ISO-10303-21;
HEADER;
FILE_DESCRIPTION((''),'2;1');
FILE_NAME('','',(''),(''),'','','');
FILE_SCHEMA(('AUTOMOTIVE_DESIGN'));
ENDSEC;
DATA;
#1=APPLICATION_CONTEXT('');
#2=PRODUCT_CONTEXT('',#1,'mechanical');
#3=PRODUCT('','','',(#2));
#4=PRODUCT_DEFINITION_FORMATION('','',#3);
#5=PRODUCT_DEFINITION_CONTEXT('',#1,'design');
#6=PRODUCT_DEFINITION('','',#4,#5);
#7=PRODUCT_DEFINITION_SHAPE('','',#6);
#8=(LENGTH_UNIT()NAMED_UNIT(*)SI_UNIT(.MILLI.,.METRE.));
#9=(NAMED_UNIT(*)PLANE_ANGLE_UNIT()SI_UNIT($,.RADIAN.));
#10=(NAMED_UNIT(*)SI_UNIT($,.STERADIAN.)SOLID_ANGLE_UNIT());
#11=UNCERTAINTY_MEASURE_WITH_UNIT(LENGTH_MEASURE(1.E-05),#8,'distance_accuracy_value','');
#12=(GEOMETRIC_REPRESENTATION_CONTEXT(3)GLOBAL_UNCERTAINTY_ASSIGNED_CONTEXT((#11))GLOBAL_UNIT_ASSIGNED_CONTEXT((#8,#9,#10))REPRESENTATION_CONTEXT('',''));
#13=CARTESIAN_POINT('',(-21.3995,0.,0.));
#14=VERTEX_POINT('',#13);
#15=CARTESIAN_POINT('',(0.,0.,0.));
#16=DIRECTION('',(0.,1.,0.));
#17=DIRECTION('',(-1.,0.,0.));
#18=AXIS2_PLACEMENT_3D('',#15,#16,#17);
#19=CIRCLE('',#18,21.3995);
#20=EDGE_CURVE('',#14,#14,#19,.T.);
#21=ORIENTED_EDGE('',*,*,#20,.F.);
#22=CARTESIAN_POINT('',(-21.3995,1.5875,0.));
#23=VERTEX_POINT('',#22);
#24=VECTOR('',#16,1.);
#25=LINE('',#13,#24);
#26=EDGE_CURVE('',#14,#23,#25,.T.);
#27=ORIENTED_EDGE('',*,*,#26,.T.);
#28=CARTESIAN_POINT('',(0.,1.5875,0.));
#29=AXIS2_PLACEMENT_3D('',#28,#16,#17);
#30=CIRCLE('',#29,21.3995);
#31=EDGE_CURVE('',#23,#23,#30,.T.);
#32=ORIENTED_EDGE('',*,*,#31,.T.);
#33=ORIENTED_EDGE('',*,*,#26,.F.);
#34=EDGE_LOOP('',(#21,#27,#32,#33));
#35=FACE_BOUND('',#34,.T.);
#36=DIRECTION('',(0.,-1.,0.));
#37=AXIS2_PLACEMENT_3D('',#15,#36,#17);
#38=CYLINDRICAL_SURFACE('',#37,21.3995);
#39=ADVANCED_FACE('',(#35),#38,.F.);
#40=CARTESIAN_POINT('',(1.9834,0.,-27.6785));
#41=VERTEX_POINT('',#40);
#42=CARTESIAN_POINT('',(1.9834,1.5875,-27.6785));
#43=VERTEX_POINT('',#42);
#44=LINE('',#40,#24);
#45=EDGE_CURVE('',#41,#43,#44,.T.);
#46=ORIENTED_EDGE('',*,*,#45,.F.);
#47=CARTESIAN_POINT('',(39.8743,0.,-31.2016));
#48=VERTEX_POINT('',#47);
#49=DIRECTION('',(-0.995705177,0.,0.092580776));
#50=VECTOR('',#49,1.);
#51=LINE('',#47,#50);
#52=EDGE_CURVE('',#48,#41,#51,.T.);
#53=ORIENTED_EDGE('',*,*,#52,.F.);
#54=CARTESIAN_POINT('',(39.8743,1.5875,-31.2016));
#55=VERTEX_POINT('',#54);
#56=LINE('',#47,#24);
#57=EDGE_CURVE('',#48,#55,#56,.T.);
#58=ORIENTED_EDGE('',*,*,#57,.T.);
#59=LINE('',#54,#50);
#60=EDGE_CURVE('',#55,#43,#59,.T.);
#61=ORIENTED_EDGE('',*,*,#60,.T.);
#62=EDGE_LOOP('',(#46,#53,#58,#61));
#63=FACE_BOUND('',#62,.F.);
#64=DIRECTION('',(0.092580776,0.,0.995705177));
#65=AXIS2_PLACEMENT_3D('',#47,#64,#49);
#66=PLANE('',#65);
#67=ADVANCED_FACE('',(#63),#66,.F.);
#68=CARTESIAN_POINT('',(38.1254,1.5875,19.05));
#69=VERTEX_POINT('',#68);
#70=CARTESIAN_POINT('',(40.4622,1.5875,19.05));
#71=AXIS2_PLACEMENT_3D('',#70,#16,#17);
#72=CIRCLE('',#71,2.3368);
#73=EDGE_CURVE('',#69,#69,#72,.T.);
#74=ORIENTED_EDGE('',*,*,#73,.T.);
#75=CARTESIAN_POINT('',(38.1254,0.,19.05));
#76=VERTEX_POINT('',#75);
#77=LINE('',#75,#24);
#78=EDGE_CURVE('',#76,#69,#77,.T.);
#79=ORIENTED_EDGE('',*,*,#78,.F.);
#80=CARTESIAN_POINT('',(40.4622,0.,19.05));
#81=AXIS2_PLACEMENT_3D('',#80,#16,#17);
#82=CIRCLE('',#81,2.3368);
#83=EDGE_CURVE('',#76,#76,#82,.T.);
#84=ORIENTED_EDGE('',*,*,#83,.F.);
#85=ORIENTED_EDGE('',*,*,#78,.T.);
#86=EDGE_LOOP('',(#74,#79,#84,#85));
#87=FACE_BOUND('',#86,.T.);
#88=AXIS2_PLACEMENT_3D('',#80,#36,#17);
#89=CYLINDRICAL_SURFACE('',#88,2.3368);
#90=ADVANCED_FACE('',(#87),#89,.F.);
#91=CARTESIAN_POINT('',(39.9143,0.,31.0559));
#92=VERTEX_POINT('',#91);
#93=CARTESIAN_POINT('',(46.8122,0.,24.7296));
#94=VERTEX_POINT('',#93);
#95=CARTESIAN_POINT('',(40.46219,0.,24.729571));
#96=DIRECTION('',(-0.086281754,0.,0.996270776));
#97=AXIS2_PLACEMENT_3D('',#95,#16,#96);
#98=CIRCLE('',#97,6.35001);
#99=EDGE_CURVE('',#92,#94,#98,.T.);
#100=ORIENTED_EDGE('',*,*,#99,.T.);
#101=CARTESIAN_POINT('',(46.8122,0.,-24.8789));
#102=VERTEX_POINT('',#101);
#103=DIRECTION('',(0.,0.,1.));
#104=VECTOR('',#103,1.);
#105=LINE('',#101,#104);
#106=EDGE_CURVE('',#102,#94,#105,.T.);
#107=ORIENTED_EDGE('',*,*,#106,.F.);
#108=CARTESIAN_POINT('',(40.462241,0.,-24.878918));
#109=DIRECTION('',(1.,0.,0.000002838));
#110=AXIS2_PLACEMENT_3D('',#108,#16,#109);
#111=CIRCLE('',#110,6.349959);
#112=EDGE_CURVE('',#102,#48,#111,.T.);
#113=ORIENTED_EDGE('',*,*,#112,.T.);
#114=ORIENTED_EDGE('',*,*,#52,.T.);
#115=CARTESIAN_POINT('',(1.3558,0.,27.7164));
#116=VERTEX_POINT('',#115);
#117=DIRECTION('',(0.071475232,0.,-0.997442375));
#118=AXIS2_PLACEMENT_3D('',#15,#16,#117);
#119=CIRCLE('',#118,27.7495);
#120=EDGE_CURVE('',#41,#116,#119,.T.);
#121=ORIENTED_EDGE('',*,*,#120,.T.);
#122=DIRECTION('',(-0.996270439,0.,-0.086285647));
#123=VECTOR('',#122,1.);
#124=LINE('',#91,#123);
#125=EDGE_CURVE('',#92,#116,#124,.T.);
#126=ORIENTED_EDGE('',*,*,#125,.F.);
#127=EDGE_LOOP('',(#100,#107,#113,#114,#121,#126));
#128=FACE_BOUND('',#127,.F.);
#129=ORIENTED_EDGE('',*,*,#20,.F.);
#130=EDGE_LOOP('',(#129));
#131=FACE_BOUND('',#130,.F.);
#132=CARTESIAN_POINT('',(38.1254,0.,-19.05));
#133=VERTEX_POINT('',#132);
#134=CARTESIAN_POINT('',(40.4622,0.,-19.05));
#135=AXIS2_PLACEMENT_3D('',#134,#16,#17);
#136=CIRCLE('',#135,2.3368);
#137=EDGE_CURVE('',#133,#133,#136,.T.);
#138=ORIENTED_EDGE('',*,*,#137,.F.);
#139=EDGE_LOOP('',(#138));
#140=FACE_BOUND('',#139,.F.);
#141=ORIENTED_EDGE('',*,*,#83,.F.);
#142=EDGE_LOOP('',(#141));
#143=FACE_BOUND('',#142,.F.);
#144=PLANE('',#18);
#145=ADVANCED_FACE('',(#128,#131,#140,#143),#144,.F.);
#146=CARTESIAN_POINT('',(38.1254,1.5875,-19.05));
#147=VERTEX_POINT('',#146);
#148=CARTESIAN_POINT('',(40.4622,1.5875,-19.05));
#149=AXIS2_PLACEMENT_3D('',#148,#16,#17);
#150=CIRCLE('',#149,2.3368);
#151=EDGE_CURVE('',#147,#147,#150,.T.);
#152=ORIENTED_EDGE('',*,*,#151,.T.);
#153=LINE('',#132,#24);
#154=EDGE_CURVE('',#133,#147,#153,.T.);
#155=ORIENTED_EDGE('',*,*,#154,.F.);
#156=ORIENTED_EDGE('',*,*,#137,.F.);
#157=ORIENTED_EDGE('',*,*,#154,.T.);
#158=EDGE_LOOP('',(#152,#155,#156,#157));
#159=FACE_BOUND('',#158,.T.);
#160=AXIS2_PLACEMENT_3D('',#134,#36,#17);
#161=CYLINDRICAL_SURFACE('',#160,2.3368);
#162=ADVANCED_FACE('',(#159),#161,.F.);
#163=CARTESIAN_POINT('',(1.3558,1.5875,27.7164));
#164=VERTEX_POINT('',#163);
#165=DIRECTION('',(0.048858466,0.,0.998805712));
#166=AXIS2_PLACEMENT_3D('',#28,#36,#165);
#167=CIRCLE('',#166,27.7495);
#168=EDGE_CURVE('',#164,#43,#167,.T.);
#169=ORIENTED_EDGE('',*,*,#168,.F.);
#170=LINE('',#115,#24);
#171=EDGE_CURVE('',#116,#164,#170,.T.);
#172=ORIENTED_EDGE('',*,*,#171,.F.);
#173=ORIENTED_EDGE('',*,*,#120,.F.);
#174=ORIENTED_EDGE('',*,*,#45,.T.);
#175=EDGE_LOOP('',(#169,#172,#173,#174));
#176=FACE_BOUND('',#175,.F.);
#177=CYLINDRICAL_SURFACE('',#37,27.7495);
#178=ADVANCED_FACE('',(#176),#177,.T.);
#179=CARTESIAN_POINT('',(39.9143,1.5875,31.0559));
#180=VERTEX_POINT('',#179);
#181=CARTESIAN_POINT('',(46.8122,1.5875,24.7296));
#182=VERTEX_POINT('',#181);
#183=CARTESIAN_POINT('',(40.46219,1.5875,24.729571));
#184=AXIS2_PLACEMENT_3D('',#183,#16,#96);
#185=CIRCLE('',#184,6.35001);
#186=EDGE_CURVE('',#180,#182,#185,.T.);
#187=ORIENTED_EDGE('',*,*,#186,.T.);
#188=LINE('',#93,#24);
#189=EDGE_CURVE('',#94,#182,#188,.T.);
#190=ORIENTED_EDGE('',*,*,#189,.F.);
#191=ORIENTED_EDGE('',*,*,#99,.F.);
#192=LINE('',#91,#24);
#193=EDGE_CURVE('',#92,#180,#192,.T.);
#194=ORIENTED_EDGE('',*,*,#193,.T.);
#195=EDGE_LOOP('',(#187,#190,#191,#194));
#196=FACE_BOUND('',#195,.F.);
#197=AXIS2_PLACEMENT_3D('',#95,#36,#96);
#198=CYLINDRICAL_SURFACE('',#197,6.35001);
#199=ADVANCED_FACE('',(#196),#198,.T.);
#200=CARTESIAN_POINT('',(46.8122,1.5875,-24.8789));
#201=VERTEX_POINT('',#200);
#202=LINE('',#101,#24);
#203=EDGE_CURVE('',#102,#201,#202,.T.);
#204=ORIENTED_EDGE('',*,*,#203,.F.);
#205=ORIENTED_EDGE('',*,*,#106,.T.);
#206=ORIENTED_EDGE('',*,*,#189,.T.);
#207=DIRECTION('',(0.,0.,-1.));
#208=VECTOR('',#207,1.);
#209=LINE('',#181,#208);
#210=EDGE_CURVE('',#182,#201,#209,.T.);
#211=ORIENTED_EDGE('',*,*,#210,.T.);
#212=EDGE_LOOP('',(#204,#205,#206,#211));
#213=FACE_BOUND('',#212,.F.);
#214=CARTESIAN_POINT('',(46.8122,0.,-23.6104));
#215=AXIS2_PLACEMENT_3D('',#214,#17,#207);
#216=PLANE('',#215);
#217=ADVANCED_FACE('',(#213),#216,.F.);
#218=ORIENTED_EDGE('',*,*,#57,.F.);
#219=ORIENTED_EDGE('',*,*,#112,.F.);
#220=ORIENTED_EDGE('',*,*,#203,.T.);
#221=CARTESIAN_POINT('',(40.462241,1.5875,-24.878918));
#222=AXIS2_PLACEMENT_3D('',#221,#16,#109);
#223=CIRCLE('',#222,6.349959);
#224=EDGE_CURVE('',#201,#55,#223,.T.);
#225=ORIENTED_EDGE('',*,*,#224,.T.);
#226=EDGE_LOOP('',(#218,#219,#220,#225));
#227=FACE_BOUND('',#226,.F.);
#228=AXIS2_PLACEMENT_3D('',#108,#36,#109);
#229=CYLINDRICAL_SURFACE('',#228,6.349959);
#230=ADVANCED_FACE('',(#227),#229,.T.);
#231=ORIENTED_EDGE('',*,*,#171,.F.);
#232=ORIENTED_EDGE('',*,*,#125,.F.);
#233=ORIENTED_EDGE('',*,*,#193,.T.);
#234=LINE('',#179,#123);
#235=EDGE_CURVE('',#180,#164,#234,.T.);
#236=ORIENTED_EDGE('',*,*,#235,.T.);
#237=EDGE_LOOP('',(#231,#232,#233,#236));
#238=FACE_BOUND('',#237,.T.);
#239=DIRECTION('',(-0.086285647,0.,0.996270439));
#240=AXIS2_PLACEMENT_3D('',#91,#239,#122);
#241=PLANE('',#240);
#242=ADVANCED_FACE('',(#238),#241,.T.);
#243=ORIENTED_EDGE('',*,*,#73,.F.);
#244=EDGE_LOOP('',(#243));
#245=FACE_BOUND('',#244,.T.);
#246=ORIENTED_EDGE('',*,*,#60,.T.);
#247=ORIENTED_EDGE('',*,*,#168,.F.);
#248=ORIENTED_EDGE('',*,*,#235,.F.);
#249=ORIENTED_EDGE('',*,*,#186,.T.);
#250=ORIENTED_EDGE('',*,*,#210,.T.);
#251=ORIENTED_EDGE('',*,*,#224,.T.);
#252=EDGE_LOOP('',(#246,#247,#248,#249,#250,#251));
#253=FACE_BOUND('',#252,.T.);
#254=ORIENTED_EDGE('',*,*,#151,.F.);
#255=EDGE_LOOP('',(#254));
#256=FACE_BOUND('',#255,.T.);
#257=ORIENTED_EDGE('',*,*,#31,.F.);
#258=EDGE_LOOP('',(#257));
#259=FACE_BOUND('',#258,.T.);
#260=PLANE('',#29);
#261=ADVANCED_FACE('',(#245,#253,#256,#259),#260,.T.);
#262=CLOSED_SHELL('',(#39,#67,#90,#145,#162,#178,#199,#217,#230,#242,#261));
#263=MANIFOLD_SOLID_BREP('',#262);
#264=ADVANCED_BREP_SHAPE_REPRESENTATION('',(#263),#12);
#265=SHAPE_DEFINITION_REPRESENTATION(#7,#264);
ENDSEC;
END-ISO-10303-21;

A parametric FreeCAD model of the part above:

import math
import FreeCAD as App
import Part
import Sketcher

V = App.Vector
Q = App.Units.Quantity

doc = App.newDocument("Part")
body = doc.addObject("PartDesign::Body", "Body")

# Sketch on XZ plane
sketch1 = body.newObject("Sketcher::SketchObject", "Sketch")
sketch1.AttachmentSupport = (doc.getObject("XZ_Plane"), [""])
sketch1.MapMode = "FlatFace"
sketch1.addGeometry([
    Part.ArcOfCircle(Part.Circle(V(0, 0, 0), V(0, 0, 1), 27.7), math.radians(87), math.radians(274)),  # 0
    Part.LineSegment(V(1.4, 27.7, 0), V(39.9, 31.1, 0)),  # 1
    Part.ArcOfCircle(Part.Circle(V(40.5, 24.7, 0), V(0, 0, 1), 6.3), math.radians(0), math.radians(95)),  # 2
    Part.LineSegment(V(46.8, 24.7, 0), V(46.8, -24.9, 0)),  # 3
    Part.ArcOfCircle(Part.Circle(V(40.5, -24.9, 0), V(0, 0, 1), 6.3), math.radians(-95), math.radians(0)),  # 4
    Part.LineSegment(V(39.9, -31.2, 0), V(2, -27.7, 0)),  # 5
    Part.Circle(V(0, 0, 0), V(0, 0, 1), 21.4),  # 6
    Part.Circle(V(40.5, 19.1, 0), V(0, 0, 1), 2.3),  # 7
    Part.Circle(V(40.5, -19.1, 0), V(0, 0, 1), 2.3),  # 8
], False)
sketch1.addConstraint([
    Sketcher.Constraint("Coincident", 0, 1, 1, 1),
    Sketcher.Constraint("Tangent", 1, 2, 2, 2),
    Sketcher.Constraint("Tangent", 2, 1, 3, 1),
    Sketcher.Constraint("Tangent", 3, 2, 4, 2),
    Sketcher.Constraint("Tangent", 4, 1, 5, 1),
    Sketcher.Constraint("Coincident", 5, 2, 0, 2),
    Sketcher.Constraint("Vertical", 3),
    Sketcher.Constraint("Coincident", 0, 3, -1, 1),
    Sketcher.Constraint("Coincident", 6, 3, -1, 1),
    Sketcher.Constraint("Equal", 2, 4),
    Sketcher.Constraint("Equal", 7, 8),
    Sketcher.Constraint("Symmetric", 7, 3, 8, 3, -1),
    Sketcher.Constraint("Vertical", 4, 3, 7, 3),
    Sketcher.Constraint("Radius", 2, Q("0.25 in")),
    Sketcher.Constraint("Diameter", 6, Q("1.685 in")),
    Sketcher.Constraint("Diameter", 7, Q("0.184 in")),
    Sketcher.Constraint("DistanceY", 8, 3, 7, 3, Q("1.5 in")),
    Sketcher.Constraint("DistanceX", -1, 1, 2, 3, Q("1.593 in")),
    Sketcher.Constraint("Radius", 0, Q("1.0925 in")),
    Sketcher.Constraint("Angle", 1, Q("4.95 deg")),
    Sketcher.Constraint("DistanceY", 3, 2, 3, 1, Q("1.9531 in")),
    Sketcher.Constraint("Distance", 5, Q("1.4982 in")),
    Sketcher.Constraint("DistanceY", -1, 1, 2, 3, Q("0.9736 in")),
])
pad1 = body.newObject("PartDesign::Pad", "Pad")
pad1.Profile = sketch1
pad1.Length = Q("0.0625 in")
pad1.Reversed = True

doc.recompute()
